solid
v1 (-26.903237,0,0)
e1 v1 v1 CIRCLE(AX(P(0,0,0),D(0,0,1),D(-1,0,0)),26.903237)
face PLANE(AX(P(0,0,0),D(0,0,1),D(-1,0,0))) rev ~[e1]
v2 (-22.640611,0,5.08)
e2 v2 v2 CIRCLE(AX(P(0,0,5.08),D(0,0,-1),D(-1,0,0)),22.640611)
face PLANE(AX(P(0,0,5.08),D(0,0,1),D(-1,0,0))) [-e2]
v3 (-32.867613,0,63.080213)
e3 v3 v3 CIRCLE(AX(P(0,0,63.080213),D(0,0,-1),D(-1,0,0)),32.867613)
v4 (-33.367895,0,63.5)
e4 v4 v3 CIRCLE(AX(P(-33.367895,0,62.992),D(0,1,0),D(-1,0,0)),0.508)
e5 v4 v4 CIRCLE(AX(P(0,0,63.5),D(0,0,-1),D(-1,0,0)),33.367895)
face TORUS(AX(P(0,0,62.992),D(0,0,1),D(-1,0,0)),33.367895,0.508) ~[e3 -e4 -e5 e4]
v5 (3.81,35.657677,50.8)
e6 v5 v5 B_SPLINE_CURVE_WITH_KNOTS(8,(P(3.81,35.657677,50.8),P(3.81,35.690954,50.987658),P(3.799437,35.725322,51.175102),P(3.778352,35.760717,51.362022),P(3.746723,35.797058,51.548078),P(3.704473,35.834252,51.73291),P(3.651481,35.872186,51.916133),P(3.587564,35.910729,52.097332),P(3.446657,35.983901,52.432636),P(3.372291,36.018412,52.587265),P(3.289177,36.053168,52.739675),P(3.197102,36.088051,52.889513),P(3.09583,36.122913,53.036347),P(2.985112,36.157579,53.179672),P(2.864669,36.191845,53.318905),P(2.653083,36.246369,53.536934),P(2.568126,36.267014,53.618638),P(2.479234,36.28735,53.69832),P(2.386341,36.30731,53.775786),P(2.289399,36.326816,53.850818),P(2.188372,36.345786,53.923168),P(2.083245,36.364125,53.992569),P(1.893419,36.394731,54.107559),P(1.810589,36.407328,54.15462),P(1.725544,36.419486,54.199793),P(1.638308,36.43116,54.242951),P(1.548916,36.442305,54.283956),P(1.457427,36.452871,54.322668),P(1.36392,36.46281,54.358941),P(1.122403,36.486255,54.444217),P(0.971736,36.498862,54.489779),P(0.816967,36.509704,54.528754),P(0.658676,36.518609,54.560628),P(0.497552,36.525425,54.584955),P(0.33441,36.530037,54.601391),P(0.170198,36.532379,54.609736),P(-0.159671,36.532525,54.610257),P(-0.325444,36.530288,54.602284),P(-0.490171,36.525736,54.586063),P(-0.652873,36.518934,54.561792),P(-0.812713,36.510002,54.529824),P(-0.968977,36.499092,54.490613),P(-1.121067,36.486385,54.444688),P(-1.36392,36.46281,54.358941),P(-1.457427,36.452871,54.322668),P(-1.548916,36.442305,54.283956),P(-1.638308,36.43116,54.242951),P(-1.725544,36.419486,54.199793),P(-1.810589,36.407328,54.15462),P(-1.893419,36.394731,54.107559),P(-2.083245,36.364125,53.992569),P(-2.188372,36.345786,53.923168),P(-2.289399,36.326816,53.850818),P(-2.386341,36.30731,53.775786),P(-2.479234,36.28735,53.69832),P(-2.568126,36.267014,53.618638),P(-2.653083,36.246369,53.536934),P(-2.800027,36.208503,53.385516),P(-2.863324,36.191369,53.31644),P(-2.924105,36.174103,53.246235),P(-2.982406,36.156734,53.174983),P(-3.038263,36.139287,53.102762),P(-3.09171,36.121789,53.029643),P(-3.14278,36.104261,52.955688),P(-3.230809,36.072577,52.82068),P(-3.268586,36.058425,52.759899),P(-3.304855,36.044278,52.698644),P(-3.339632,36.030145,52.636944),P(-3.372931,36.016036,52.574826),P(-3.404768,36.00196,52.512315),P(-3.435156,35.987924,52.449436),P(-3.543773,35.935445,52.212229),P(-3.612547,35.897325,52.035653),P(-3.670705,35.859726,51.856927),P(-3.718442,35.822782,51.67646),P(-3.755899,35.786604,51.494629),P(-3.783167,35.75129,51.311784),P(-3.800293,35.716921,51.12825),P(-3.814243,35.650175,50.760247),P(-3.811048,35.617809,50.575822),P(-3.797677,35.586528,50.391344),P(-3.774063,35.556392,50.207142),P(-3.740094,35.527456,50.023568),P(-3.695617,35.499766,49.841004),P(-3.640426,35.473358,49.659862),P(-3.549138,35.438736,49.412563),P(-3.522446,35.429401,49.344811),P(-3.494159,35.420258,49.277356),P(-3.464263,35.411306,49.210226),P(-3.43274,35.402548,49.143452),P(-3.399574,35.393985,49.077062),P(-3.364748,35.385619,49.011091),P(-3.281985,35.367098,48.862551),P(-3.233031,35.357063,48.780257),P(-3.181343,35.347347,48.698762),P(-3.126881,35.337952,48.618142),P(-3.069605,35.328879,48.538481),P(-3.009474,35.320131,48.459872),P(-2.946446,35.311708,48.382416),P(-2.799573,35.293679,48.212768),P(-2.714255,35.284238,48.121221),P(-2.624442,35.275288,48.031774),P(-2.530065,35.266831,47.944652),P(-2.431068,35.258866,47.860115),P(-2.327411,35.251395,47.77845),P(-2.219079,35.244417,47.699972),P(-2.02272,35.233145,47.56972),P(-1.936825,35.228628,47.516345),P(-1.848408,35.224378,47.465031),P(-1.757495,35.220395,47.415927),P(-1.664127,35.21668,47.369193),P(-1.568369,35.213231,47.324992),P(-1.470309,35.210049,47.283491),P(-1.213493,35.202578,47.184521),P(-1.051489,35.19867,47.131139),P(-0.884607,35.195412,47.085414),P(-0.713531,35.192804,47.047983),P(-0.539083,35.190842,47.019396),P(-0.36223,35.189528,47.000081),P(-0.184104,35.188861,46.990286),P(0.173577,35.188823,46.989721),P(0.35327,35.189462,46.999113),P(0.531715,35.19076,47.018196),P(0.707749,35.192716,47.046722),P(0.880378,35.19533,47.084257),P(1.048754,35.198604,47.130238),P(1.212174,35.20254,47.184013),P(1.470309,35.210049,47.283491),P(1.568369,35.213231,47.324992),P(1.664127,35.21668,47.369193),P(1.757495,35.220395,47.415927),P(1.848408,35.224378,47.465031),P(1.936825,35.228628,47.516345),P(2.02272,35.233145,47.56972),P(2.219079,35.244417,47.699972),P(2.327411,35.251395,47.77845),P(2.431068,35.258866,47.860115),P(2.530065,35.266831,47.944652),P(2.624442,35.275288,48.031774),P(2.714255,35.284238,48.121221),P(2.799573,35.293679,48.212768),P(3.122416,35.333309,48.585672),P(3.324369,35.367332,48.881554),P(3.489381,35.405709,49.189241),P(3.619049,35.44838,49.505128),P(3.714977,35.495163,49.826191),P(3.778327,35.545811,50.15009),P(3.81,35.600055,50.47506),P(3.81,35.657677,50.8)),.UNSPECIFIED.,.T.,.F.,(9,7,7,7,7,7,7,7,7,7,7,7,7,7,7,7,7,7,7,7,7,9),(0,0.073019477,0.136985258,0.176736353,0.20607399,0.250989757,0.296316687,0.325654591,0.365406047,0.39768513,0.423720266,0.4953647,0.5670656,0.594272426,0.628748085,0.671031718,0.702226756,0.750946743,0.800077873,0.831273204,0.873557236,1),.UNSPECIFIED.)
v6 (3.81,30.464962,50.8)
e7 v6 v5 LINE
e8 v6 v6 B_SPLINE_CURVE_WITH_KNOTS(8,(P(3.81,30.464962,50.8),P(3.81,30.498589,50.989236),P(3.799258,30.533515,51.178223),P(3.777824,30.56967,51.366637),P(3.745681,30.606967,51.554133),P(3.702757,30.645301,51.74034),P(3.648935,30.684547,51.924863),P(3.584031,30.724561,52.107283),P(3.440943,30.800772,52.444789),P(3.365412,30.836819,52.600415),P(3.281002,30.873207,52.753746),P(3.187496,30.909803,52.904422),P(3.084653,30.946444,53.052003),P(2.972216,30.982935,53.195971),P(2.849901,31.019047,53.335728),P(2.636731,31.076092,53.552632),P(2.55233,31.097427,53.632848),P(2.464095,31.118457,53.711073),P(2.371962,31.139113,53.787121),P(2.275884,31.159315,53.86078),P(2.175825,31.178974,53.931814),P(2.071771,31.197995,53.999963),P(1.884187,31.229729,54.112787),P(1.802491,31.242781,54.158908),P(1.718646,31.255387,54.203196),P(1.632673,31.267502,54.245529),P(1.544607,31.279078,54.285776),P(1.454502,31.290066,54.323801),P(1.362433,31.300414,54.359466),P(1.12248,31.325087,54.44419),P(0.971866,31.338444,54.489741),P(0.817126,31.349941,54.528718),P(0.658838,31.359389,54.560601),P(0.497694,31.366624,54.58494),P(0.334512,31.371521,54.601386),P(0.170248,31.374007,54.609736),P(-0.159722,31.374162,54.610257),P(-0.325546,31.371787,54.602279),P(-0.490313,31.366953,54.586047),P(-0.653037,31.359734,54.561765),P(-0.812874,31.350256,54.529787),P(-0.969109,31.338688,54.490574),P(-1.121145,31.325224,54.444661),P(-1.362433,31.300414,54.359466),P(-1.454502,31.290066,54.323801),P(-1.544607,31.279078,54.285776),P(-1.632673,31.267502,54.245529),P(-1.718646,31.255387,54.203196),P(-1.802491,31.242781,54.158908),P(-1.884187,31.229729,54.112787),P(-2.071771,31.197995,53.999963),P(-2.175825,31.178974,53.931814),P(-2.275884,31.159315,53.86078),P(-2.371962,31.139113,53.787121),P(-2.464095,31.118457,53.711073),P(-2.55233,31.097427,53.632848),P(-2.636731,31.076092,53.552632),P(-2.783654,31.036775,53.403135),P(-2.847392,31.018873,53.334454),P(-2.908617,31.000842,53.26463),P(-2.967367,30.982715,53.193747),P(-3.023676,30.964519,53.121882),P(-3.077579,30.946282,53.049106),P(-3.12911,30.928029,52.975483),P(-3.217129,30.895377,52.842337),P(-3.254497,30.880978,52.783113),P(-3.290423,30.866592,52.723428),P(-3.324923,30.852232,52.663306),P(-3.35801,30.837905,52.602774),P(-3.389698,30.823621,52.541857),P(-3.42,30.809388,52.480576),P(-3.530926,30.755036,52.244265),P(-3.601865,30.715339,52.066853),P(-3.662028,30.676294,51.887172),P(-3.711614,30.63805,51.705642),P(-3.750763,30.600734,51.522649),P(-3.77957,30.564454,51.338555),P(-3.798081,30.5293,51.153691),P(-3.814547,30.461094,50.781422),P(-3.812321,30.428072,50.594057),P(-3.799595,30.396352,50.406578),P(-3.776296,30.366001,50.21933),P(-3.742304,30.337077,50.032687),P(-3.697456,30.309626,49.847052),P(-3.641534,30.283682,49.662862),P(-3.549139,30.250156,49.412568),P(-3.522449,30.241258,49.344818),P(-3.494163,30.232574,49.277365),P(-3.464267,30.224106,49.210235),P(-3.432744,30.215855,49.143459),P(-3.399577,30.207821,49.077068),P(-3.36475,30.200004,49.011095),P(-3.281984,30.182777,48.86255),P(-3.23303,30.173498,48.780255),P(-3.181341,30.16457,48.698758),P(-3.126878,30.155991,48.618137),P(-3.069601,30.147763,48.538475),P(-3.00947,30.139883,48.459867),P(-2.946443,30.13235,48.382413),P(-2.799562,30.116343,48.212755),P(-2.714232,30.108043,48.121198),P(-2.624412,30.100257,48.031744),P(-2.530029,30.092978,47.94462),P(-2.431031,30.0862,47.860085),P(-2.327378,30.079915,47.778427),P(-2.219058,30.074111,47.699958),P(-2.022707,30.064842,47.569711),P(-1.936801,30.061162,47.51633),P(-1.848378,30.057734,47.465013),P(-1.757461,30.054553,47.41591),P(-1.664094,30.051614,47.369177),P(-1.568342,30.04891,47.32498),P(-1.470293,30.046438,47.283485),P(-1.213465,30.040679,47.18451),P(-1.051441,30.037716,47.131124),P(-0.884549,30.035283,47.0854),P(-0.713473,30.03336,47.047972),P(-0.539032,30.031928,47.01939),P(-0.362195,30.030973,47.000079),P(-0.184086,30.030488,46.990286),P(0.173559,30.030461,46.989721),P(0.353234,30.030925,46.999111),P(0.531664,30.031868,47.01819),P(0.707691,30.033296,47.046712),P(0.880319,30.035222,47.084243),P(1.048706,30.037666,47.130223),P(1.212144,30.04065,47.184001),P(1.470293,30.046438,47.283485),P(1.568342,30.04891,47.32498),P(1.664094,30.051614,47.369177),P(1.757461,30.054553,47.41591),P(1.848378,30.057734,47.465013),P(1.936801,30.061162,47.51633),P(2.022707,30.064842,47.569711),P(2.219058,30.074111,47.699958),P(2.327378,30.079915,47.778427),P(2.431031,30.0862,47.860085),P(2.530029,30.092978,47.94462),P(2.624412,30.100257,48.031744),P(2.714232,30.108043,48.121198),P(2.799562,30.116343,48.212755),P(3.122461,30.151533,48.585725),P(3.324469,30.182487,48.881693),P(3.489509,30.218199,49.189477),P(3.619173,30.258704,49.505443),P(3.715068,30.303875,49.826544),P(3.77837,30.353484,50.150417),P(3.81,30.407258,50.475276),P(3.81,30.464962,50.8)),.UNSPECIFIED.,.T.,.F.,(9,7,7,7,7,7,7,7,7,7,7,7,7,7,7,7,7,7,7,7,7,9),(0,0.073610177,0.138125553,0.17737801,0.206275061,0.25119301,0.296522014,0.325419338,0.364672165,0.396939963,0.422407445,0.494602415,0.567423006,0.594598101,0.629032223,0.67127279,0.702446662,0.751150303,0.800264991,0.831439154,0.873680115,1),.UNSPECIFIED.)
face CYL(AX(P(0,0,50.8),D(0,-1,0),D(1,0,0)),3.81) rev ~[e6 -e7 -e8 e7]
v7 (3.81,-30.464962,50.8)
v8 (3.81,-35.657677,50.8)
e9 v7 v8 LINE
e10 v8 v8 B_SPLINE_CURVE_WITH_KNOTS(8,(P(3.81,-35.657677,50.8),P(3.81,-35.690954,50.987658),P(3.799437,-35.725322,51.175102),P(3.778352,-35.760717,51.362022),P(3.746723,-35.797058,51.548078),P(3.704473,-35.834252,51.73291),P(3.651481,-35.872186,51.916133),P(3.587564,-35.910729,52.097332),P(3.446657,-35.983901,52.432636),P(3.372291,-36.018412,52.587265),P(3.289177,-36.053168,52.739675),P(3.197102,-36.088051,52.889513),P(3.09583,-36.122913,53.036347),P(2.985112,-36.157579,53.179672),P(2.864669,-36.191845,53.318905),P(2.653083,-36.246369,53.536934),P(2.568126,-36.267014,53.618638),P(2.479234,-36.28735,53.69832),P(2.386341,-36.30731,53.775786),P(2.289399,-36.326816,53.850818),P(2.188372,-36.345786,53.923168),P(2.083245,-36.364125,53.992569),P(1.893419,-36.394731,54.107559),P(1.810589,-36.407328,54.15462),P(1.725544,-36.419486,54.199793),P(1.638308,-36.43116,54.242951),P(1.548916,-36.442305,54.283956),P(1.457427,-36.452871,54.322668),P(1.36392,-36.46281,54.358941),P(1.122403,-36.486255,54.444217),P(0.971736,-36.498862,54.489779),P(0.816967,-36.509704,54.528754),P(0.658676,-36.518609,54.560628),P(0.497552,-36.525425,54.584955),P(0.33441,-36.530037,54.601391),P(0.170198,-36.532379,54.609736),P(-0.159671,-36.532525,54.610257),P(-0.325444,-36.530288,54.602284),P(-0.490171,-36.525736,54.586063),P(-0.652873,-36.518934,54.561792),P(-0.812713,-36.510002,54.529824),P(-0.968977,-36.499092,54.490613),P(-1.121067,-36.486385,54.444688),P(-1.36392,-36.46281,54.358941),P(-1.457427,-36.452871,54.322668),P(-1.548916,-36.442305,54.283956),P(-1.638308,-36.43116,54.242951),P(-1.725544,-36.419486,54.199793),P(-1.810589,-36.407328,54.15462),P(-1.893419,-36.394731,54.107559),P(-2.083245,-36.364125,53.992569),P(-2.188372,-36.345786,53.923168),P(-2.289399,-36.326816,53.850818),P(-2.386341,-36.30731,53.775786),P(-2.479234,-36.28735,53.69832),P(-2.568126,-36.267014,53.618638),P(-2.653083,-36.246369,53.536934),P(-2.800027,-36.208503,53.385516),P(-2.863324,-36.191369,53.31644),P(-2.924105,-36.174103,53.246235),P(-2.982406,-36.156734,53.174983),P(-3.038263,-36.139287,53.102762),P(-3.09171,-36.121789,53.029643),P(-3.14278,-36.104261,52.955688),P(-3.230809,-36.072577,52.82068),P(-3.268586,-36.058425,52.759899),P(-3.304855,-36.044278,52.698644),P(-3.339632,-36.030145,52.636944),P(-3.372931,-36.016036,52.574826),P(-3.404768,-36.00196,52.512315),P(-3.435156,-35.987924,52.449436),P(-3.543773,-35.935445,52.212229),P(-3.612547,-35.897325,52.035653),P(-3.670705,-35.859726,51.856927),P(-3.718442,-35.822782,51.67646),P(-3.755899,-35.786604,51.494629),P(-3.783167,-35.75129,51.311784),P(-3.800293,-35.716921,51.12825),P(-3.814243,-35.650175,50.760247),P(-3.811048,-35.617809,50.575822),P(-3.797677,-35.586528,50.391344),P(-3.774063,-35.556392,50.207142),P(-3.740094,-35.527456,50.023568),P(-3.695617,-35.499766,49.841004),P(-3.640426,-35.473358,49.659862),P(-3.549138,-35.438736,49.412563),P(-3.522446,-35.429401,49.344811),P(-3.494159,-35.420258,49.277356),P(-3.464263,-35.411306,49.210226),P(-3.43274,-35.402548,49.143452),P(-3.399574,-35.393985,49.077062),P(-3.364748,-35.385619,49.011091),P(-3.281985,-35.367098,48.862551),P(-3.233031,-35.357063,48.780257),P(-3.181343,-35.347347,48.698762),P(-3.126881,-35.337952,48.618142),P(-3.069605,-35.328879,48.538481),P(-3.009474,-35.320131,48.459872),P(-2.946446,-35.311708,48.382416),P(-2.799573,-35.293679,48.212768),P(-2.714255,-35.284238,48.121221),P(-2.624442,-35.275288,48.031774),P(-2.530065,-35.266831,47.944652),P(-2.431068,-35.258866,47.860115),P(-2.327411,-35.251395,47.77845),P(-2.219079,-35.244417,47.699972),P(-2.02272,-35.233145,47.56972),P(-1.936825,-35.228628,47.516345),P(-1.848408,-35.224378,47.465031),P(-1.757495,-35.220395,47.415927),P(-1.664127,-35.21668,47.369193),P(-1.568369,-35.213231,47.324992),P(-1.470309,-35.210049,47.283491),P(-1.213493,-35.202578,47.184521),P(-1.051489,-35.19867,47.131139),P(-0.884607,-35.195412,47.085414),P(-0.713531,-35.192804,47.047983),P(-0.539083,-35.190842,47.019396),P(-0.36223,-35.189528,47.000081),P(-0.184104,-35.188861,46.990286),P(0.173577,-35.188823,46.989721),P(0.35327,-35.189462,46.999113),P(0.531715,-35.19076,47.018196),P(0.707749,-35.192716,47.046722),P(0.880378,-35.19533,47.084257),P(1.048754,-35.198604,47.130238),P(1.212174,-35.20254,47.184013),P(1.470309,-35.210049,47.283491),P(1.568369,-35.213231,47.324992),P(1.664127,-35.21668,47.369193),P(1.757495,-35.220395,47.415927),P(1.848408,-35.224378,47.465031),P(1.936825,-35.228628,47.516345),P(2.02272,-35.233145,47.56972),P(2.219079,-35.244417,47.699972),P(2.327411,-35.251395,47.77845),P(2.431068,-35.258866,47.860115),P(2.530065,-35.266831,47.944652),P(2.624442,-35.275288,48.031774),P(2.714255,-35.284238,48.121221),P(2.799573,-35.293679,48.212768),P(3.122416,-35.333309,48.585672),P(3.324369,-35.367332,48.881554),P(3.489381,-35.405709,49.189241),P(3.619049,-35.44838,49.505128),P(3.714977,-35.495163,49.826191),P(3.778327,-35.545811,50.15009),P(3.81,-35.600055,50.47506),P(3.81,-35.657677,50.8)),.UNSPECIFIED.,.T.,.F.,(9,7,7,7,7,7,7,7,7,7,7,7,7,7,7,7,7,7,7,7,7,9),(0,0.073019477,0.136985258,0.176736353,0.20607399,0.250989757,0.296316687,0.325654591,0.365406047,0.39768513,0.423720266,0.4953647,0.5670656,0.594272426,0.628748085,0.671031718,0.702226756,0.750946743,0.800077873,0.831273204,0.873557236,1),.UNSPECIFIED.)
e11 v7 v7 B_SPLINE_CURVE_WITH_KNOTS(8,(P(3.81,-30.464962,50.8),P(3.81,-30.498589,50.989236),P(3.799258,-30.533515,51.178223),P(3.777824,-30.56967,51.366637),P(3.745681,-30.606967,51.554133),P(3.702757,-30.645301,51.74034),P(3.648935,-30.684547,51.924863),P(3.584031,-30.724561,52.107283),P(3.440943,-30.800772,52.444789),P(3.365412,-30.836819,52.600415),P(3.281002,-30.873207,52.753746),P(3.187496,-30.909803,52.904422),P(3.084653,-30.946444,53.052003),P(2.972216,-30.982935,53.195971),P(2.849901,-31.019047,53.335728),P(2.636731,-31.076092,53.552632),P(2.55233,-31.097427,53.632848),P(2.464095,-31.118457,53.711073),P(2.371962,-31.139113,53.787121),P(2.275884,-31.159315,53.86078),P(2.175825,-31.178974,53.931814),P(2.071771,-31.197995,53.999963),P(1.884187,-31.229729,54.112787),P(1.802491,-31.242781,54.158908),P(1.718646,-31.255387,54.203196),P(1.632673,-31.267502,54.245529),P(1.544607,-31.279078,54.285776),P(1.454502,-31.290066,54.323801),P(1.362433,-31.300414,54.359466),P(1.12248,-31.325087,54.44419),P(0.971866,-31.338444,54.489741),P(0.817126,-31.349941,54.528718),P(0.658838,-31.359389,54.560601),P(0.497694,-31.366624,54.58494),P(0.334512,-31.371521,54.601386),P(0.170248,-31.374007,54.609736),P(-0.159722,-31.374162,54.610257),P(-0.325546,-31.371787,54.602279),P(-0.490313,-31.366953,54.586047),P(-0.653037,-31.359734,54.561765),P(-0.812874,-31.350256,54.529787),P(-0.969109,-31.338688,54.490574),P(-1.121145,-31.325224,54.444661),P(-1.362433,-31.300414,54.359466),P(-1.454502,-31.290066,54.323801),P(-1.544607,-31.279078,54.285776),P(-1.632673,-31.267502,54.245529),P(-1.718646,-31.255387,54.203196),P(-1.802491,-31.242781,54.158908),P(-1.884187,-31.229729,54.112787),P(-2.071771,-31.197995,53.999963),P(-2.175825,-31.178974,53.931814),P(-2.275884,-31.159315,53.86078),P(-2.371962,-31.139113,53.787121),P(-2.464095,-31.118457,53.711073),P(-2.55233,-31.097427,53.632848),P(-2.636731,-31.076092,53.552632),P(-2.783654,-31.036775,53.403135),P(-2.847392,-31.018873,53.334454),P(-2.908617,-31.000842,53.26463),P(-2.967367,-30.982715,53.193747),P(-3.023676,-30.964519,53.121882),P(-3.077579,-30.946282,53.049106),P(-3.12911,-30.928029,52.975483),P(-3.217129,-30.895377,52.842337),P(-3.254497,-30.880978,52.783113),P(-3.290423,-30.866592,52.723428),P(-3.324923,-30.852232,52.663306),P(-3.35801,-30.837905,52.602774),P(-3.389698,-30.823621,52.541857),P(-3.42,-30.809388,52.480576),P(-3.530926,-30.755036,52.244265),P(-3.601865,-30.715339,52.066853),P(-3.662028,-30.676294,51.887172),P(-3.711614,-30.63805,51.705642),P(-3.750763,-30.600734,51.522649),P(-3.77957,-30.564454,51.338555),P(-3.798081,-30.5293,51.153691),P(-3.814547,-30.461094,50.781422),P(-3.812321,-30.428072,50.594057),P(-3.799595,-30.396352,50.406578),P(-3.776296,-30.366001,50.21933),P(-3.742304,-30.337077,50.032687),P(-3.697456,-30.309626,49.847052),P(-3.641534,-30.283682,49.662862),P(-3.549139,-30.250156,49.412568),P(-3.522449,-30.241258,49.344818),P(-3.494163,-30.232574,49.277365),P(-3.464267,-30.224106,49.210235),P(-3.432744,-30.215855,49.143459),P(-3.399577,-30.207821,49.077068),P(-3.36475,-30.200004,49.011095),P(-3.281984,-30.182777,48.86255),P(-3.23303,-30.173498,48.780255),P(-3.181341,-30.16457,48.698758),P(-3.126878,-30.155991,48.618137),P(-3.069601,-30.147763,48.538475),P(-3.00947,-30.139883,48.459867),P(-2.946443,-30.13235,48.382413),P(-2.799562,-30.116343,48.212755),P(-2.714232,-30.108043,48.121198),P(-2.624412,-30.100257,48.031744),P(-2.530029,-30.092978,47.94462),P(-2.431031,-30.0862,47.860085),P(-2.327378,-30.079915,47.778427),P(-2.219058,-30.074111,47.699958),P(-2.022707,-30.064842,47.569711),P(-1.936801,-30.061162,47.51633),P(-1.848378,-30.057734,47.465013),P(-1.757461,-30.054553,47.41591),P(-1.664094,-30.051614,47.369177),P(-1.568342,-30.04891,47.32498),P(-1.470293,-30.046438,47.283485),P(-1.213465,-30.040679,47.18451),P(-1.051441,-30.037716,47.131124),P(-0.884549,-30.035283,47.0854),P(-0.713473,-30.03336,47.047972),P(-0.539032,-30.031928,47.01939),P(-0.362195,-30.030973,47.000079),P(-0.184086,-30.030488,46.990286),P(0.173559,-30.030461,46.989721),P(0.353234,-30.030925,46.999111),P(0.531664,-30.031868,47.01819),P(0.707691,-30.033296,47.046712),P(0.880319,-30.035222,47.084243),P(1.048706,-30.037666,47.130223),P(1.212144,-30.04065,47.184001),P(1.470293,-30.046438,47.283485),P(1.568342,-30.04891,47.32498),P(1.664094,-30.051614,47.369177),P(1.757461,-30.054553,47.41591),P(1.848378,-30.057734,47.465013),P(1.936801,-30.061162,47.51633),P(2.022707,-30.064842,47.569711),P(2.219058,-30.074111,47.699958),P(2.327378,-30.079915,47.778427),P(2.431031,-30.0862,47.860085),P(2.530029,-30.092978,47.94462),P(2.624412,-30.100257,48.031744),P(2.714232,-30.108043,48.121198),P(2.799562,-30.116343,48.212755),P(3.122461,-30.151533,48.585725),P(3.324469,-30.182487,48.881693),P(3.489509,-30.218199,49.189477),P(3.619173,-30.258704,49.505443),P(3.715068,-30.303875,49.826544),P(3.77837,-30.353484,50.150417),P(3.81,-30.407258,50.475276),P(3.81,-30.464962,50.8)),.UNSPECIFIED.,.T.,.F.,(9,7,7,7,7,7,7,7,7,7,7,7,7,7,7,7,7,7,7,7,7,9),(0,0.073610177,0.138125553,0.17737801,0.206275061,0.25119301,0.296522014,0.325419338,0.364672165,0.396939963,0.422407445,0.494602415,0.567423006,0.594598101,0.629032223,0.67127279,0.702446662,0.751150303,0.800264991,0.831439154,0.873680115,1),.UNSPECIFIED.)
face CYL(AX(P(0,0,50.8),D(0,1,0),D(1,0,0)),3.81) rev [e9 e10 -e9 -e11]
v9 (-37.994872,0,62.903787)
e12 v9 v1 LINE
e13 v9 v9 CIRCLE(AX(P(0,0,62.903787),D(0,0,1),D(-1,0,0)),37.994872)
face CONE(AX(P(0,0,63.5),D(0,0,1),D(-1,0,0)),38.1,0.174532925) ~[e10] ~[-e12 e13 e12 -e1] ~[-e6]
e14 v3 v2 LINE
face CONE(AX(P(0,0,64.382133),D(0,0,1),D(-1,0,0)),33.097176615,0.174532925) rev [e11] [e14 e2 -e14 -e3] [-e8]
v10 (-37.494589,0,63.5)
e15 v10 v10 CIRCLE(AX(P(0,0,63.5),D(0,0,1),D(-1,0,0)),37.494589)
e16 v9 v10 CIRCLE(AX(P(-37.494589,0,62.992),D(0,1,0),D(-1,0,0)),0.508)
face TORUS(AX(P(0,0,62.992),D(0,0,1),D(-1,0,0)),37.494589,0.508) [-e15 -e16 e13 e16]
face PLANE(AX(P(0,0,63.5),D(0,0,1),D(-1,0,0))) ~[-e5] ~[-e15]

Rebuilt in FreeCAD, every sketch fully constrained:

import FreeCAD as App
import Part
import Sketcher
Q = App.Units.Quantity


def edges_at(feature, points):
    """Names of the edges that pass closest to the given points."""
    edges = feature.Shape.Edges
    near = lambda p: min(range(len(edges)), key=lambda i: edges[i].distToShape(Part.Vertex(*p))[0])
    return sorted({f"Edge{near(p) + 1}" for p in points})


def faces_at(feature, points):
    """Names of the faces that lie closest to the given points."""
    faces = feature.Shape.Faces
    near = lambda p: min(range(len(faces)), key=lambda i: faces[i].distToShape(Part.Vertex(*p))[0])
    return sorted({f"Face{near(p) + 1}" for p in points})

doc = App.newDocument("Part")
body = doc.addObject("PartDesign::Body", "Body")

# Sketch on XZ plane
sketch1 = doc.addObject("Sketcher::SketchObject", "Sketch")
body.addObject(sketch1)
sketch1.AttachmentSupport = (doc.XZ_Plane, [""])
sketch1.MapMode = "FlatFace"
sketch1.addGeometry([
    Part.LineSegment(App.Vector(0, 0, 0), App.Vector(0, 63.5, 0)),
    Part.LineSegment(App.Vector(0, 63.5, 0), App.Vector(-38.1, 63.5, 0)),
    Part.LineSegment(App.Vector(-38.1, 63.5, 0), App.Vector(-26.903237, 0, 0)),
    Part.LineSegment(App.Vector(-26.903237, 0, 0), App.Vector(0, 0, 0)),
], False)
sketch1.addConstraint([
    Sketcher.Constraint("Coincident", 0, 2, 1, 1),
    Sketcher.Constraint("Coincident", 1, 2, 2, 1),
    Sketcher.Constraint("Coincident", 2, 2, 3, 1),
    Sketcher.Constraint("Coincident", 3, 2, 0, 1),
    Sketcher.Constraint("Vertical", 0),
    Sketcher.Constraint("Horizontal", 1),
    Sketcher.Constraint("Horizontal", 3),
    Sketcher.Constraint("Coincident", 3, 2, -1, 1),
    Sketcher.Constraint("DistanceX", 1, 2, 1, 1, Q("1.5 in")),
    Sketcher.Constraint("DistanceY", 0, 1, 0, 2, Q("2.5 in")),
    Sketcher.Constraint("Angle", 2, Q("-80 deg")),
])
revolution = doc.addObject("PartDesign::Revolution", "Revolution")
body.addObject(revolution)
revolution.Profile = sketch1
revolution.ReferenceAxis = (sketch1, ["V_Axis"])
revolution.Angle = 360
doc.recompute()

thickness = doc.addObject("PartDesign::Thickness", "Thickness")
body.addObject(thickness)
thickness.Base = (revolution, faces_at(revolution, [(0, 0, 63.5)]))
thickness.Value = Q("0.2 in")
thickness.Reversed = True
thickness.Join = "Arc"

# Sketch on XZ plane
sketch2 = doc.addObject("Sketcher::SketchObject", "Sketch001")
body.addObject(sketch2)
sketch2.AttachmentSupport = (doc.XZ_Plane, [""])
sketch2.MapMode = "FlatFace"
sketch2.addGeometry(Part.Circle(App.Vector(0, 50.8, 0), App.Vector(0, 0, 1), 3.81), False)
sketch2.addConstraint([
    Sketcher.Constraint("PointOnObject", 0, 3, -2),
    Sketcher.Constraint("Diameter", 0, Q("0.3 in")),
    Sketcher.Constraint("DistanceY", -1, 1, 0, 3, Q("2 in")),
])
pocket1 = doc.addObject("PartDesign::Pocket", "Pocket")
body.addObject(pocket1)
pocket1.Profile = sketch2
pocket1.Length = Q("10 in")

# Sketch on XZ plane
sketch3 = doc.addObject("Sketcher::SketchObject", "Sketch002")
body.addObject(sketch3)
sketch3.AttachmentSupport = (doc.XZ_Plane, [""])
sketch3.MapMode = "FlatFace"
sketch3.addGeometry(Part.Circle(App.Vector(0, 50.8, 0), App.Vector(0, 0, 1), 3.81), False)
sketch3.addConstraint([
    Sketcher.Constraint("PointOnObject", 0, 3, -2),
    Sketcher.Constraint("Diameter", 0, Q("0.3 in")),
    Sketcher.Constraint("DistanceY", -1, 1, 0, 3, Q("2 in")),
])
pocket2 = doc.addObject("PartDesign::Pocket", "Pocket001")
body.addObject(pocket2)
pocket2.Profile = sketch3
pocket2.Length = Q("10 in")
pocket2.Reversed = True
doc.recompute()

fillet = doc.addObject("PartDesign::Fillet", "Fillet")
body.addObject(fillet)
fillet.Base = (pocket2, edges_at(pocket2, [(38.1, 0, 63.5), (32.942, 0, 63.5)]))
fillet.Radius = Q("0.02 in")

doc.recompute()
